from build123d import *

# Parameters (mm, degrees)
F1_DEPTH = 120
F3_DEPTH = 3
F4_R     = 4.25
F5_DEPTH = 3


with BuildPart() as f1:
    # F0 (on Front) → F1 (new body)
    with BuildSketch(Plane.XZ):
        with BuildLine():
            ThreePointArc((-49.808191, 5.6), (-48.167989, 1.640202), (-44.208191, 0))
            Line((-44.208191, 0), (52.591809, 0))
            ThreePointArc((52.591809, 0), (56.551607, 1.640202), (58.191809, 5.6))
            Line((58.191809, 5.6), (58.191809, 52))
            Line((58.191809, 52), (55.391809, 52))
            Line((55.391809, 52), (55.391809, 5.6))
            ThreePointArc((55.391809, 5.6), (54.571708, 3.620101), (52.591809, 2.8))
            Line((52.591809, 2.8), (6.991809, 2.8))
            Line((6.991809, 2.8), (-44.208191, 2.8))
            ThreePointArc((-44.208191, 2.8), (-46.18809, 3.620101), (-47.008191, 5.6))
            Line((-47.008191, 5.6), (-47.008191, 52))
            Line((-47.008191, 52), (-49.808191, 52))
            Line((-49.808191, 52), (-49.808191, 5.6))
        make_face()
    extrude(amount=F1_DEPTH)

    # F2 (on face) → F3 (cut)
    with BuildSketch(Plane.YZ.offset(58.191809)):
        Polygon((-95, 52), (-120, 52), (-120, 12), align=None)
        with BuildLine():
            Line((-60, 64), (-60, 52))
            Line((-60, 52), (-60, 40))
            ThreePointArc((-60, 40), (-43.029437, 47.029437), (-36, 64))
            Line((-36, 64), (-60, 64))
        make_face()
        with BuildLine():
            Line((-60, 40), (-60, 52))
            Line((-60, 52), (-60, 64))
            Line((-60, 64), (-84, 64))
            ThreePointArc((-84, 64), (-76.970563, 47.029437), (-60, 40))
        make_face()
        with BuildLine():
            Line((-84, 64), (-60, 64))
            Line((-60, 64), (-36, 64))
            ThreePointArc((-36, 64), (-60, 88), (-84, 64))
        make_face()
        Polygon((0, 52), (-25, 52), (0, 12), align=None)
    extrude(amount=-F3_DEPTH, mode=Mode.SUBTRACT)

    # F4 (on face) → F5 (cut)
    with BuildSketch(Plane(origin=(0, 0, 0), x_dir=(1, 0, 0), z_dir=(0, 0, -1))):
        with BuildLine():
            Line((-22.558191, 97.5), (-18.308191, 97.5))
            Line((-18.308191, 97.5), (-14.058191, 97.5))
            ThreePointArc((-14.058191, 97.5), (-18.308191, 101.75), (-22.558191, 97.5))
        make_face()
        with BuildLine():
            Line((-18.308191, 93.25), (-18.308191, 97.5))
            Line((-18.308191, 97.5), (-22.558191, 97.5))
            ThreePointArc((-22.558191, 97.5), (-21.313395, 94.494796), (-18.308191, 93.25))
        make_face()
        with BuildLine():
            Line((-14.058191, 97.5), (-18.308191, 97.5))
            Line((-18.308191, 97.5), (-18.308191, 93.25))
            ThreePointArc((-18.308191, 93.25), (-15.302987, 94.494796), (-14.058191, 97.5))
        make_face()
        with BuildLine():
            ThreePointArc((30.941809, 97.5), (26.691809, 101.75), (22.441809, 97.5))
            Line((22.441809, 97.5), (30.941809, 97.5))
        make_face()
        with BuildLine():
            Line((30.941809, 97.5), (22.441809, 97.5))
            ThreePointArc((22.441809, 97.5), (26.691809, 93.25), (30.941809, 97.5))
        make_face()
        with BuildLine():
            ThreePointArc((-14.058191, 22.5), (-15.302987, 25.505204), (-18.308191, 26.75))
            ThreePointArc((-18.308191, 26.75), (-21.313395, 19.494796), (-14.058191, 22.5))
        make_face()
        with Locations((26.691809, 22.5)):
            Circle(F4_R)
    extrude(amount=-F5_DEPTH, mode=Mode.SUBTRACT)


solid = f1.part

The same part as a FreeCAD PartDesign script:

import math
import FreeCAD as App
import Part
import Sketcher
from FreeCAD import Vector
Q = App.Units.Quantity

doc = App.newDocument("Part")
body = doc.addObject("PartDesign::Body", "Body")

# Sketch on XZ plane
sketch1 = doc.addObject("Sketcher::SketchObject", "Sketch")
body.addObject(sketch1)
sketch1.AttachmentSupport = (doc.XZ_Plane, [""])
sketch1.MapMode = "FlatFace"
sketch1.addGeometry(Part.ArcOfCircle(Part.Circle(Vector(-44.2, 5.6, 0), Vector(0, 0, 1), 5.6), math.radians(180), math.radians(270)), False)
sketch1.addGeometry(Part.LineSegment(Vector(-44.2, 0, 0), Vector(52.6, 0, 0)), False)
sketch1.addGeometry(Part.ArcOfCircle(Part.Circle(Vector(52.6, 5.6, 0), Vector(0, 0, 1), 5.6), math.radians(-90), math.radians(0)), False)
sketch1.addGeometry(Part.LineSegment(Vector(58.2, 5.6, 0), Vector(58.2, 52, 0)), False)
sketch1.addGeometry(Part.LineSegment(Vector(58.2, 52, 0), Vector(55.4, 52, 0)), False)
sketch1.addGeometry(Part.LineSegment(Vector(55.4, 52, 0), Vector(55.4, 5.6, 0)), False)
sketch1.addGeometry(Part.ArcOfCircle(Part.Circle(Vector(52.6, 5.6, 0), Vector(0, 0, 1), 2.8), math.radians(-90), math.radians(0)), False)
sketch1.addGeometry(Part.LineSegment(Vector(52.6, 2.8, 0), Vector(-44.2, 2.8, 0)), False)
sketch1.addGeometry(Part.ArcOfCircle(Part.Circle(Vector(-44.2, 5.6, 0), Vector(0, 0, 1), 2.8), math.radians(180), math.radians(270)), False)
sketch1.addGeometry(Part.LineSegment(Vector(-47, 5.6, 0), Vector(-47, 52, 0)), False)
sketch1.addGeometry(Part.LineSegment(Vector(-47, 52, 0), Vector(-49.8, 52, 0)), False)
sketch1.addGeometry(Part.LineSegment(Vector(-49.8, 52, 0), Vector(-49.8, 5.6, 0)), False)
sketch1.addConstraint(Sketcher.Constraint("Tangent", 0, 2, 1, 1))
sketch1.addConstraint(Sketcher.Constraint("Tangent", 1, 2, 2, 1))
sketch1.addConstraint(Sketcher.Constraint("Tangent", 2, 2, 3, 1))
sketch1.addConstraint(Sketcher.Constraint("Coincident", 3, 2, 4, 1))
sketch1.addConstraint(Sketcher.Constraint("Coincident", 4, 2, 5, 1))
sketch1.addConstraint(Sketcher.Constraint("Tangent", 5, 2, 6, 2))
sketch1.addConstraint(Sketcher.Constraint("Tangent", 6, 1, 7, 1))
sketch1.addConstraint(Sketcher.Constraint("Tangent", 7, 2, 8, 2))
sketch1.addConstraint(Sketcher.Constraint("Tangent", 8, 1, 9, 1))
sketch1.addConstraint(Sketcher.Constraint("Coincident", 9, 2, 10, 1))
sketch1.addConstraint(Sketcher.Constraint("Coincident", 10, 2, 11, 1))
sketch1.addConstraint(Sketcher.Constraint("Tangent", 11, 2, 0, 1))
sketch1.addConstraint(Sketcher.Constraint("Horizontal", 1))
sketch1.addConstraint(Sketcher.Constraint("Vertical", 3))
sketch1.addConstraint(Sketcher.Constraint("Horizontal", 4))
sketch1.addConstraint(Sketcher.Constraint("Vertical", 5))
sketch1.addConstraint(Sketcher.Constraint("Horizontal", 7))
sketch1.addConstraint(Sketcher.Constraint("Vertical", 9))
sketch1.addConstraint(Sketcher.Constraint("Horizontal", 10))
sketch1.addConstraint(Sketcher.Constraint("Vertical", 11))
sketch1.addConstraint(Sketcher.Constraint("Coincident", 6, 3, 2, 3))
sketch1.addConstraint(Sketcher.Constraint("Coincident", 8, 3, 0, 3))
sketch1.addConstraint(Sketcher.Constraint("Equal", 0, 2))
sketch1.addConstraint(Sketcher.Constraint("PointOnObject", 0, 2, -1))
sketch1.addConstraint(Sketcher.Constraint("Horizontal", 4, 2, 9, 2))
sketch1.addConstraint(Sketcher.Constraint("Radius", 0, Q("5.6 mm")))
sketch1.addConstraint(Sketcher.Constraint("Radius", 6, Q("2.8 mm")))
sketch1.addConstraint(Sketcher.Constraint("DistanceX", 1, 1, 1, 2, Q("96.8 mm")))
sketch1.addConstraint(Sketcher.Constraint("DistanceY", 3, 1, 3, 2, Q("46.4 mm")))
sketch1.addConstraint(Sketcher.Constraint("DistanceX", 0, 3, -1, 1, Q("44.208191 mm")))
pad1 = doc.addObject("PartDesign::Pad", "Pad")
body.addObject(pad1)
pad1.Profile = sketch1
pad1.Length = 120

# Sketch on YZ plane
sketch2 = doc.addObject("Sketcher::SketchObject", "Sketch001")
body.addObject(sketch2)
sketch2.AttachmentSupport = (doc.YZ_Plane, [""])
sketch2.MapMode = "FlatFace"
sketch2.AttachmentOffset = App.Placement(Vector(0, 0, 58.191809), App.Rotation())
sketch2.addGeometry(Part.LineSegment(Vector(-95, 52, 0), Vector(-120, 52, 0)), False)
sketch2.addGeometry(Part.LineSegment(Vector(-120, 52, 0), Vector(-120, 12, 0)), False)
sketch2.addGeometry(Part.LineSegment(Vector(-120, 12, 0), Vector(-95, 52, 0)), False)
sketch2.addGeometry(Part.ArcOfCircle(Part.Circle(Vector(-60, 64, 0), Vector(0, 0, 1), 24), math.radians(-90), math.radians(0)), False)
sketch2.addGeometry(Part.ArcOfCircle(Part.Circle(Vector(-60, 64, 0), Vector(0, 0, 1), 24), math.radians(0), math.radians(180)), False)
sketch2.addGeometry(Part.ArcOfCircle(Part.Circle(Vector(-60, 64, 0), Vector(0, 0, 1), 24), math.radians(180), math.radians(270)), False)
sketch2.addGeometry(Part.LineSegment(Vector(0, 52, 0), Vector(-25, 52, 0)), False)
sketch2.addGeometry(Part.LineSegment(Vector(-25, 52, 0), Vector(0, 12, 0)), False)
sketch2.addGeometry(Part.LineSegment(Vector(0, 12, 0), Vector(0, 52, 0)), False)
sketch2.addConstraint(Sketcher.Constraint("Coincident", 0, 2, 1, 1))
sketch2.addConstraint(Sketcher.Constraint("Coincident", 1, 2, 2, 1))
sketch2.addConstraint(Sketcher.Constraint("Coincident", 2, 2, 0, 1))
sketch2.addConstraint(Sketcher.Constraint("Tangent", 3, 2, 4, 1))
sketch2.addConstraint(Sketcher.Constraint("Tangent", 4, 2, 5, 1))
sketch2.addConstraint(Sketcher.Constraint("Tangent", 5, 2, 3, 1))
sketch2.addConstraint(Sketcher.Constraint("Coincident", 6, 2, 7, 1))
sketch2.addConstraint(Sketcher.Constraint("Coincident", 7, 2, 8, 1))
sketch2.addConstraint(Sketcher.Constraint("Coincident", 8, 2, 6, 1))
sketch2.addConstraint(Sketcher.Constraint("Horizontal", 0))
sketch2.addConstraint(Sketcher.Constraint("Vertical", 1))
sketch2.addConstraint(Sketcher.Constraint("Horizontal", 6))
sketch2.addConstraint(Sketcher.Constraint("Vertical", 8))
sketch2.addConstraint(Sketcher.Constraint("PointOnObject", 7, 2, -2))
sketch2.addConstraint(Sketcher.Constraint("Horizontal", 5, 3, 3, 2))
sketch2.addConstraint(Sketcher.Constraint("Horizontal", 3, 2, 4, 2))
sketch2.addConstraint(Sketcher.Constraint("Horizontal", 2, 2, 6, 2))
sketch2.addConstraint(Sketcher.Constraint("Horizontal", 1, 2, 7, 2))
sketch2.addConstraint(Sketcher.Constraint("Vertical", 4, 3, 5, 2))
sketch2.addConstraint(Sketcher.Constraint("Equal", 0, 6))
sketch2.addConstraint(Sketcher.Constraint("Radius", 3, Q("23.999999 mm")))
sketch2.addConstraint(Sketcher.Constraint("DistanceX", 0, 2, 0, 1, Q("25 mm")))
sketch2.addConstraint(Sketcher.Constraint("DistanceY", 1, 2, 1, 1, Q("40 mm")))
sketch2.addConstraint(Sketcher.Constraint("DistanceX", 3, 3, -1, 1, Q("59.999999 mm")))
sketch2.addConstraint(Sketcher.Constraint("DistanceY", -1, 1, 3, 3, Q("63.999999 mm")))
sketch2.addConstraint(Sketcher.Constraint("DistanceX", 0, 2, -1, 1, Q("120 mm")))
sketch2.addConstraint(Sketcher.Constraint("DistanceY", -1, 1, 0, 2, Q("52 mm")))
pocket1 = doc.addObject("PartDesign::Pocket", "Pocket")
body.addObject(pocket1)
pocket1.Profile = sketch2
pocket1.Length = 3

# Sketch on XY plane
sketch3 = doc.addObject("Sketcher::SketchObject", "Sketch002")
body.addObject(sketch3)
sketch3.AttachmentSupport = (doc.XY_Plane, [""])
sketch3.MapMode = "FlatFace"
sketch3.addGeometry(Part.ArcOfCircle(Part.Circle(Vector(-18.3, -97.5, 0), Vector(0, 0, 1), 4.2), math.radians(180), math.radians(360)), False)
sketch3.addGeometry(Part.ArcOfCircle(Part.Circle(Vector(-18.3, -97.5, 0), Vector(0, 0, 1), 4.2), math.radians(90), math.radians(180)), False)
sketch3.addGeometry(Part.ArcOfCircle(Part.Circle(Vector(-18.3, -97.5, 0), Vector(0, 0, 1), 4.2), math.radians(0), math.radians(90)), False)
sketch3.addGeometry(Part.Circle(Vector(26.7, -97.5, 0), Vector(0, 0, 1), 4.2), False)
sketch3.addGeometry(Part.ArcOfCircle(Part.Circle(Vector(-18.3, -22.5, 0), Vector(0, 0, 1), 4.2), math.radians(-90), math.radians(0)), False)
sketch3.addGeometry(Part.ArcOfCircle(Part.Circle(Vector(-18.3, -22.5, 0), Vector(0, 0, 1), 4.3), math.radians(0), math.radians(270)), False)
sketch3.addGeometry(Part.Circle(Vector(26.7, -22.5, 0), Vector(0, 0, 1), 4.2), False)
sketch3.addConstraint(Sketcher.Constraint("Tangent", 0, 1, 1, 2))
sketch3.addConstraint(Sketcher.Constraint("Tangent", 1, 1, 2, 2))
sketch3.addConstraint(Sketcher.Constraint("Tangent", 2, 1, 0, 2))
sketch3.addConstraint(Sketcher.Constraint("Tangent", 4, 1, 5, 2))
sketch3.addConstraint(Sketcher.Constraint("Coincident", 5, 1, 4, 2))
sketch3.addConstraint(Sketcher.Constraint("Equal", 2, 3))
sketch3.addConstraint(Sketcher.Constraint("Equal", 3, 4))
sketch3.addConstraint(Sketcher.Constraint("Equal", 5, 6))
sketch3.addConstraint(Sketcher.Constraint("Horizontal", 2, 3, 3, 3))
sketch3.addConstraint(Sketcher.Constraint("Horizontal", 5, 3, 6, 3))
sketch3.addConstraint(Sketcher.Constraint("Horizontal", 3, 3, 0, 1))
sketch3.addConstraint(Sketcher.Constraint("Horizontal", 0, 1, 2, 1))
sketch3.addConstraint(Sketcher.Constraint("Horizontal", 6, 3, 5, 1))
sketch3.addConstraint(Sketcher.Constraint("Vertical", 2, 3, 4, 3))
sketch3.addConstraint(Sketcher.Constraint("Vertical", 3, 3, 6, 3))
sketch3.addConstraint(Sketcher.Constraint("Vertical", 5, 3, 1, 1))
sketch3.addConstraint(Sketcher.Constraint("Vertical", 1, 1, 4, 1))
sketch3.addConstraint(Sketcher.Constraint("Diameter", 3, Q("8.5 mm")))
sketch3.addConstraint(Sketcher.Constraint("DistanceX", 2, 3, 3, 3, Q("44.999999 mm")))
sketch3.addConstraint(Sketcher.Constraint("DistanceY", 2, 3, 4, 3, Q("74.999999 mm")))
sketch3.addConstraint(Sketcher.Constraint("DistanceY", 0, 3, -1, 1, Q("97.5 mm")))
sketch3.addConstraint(Sketcher.Constraint("DistanceX", 0, 3, -1, 1, Q("18.308191 mm")))
pocket2 = doc.addObject("PartDesign::Pocket", "Pocket001")
body.addObject(pocket2)
pocket2.Profile = sketch3
pocket2.Length = 3
pocket2.Reversed = True

doc.recompute()
